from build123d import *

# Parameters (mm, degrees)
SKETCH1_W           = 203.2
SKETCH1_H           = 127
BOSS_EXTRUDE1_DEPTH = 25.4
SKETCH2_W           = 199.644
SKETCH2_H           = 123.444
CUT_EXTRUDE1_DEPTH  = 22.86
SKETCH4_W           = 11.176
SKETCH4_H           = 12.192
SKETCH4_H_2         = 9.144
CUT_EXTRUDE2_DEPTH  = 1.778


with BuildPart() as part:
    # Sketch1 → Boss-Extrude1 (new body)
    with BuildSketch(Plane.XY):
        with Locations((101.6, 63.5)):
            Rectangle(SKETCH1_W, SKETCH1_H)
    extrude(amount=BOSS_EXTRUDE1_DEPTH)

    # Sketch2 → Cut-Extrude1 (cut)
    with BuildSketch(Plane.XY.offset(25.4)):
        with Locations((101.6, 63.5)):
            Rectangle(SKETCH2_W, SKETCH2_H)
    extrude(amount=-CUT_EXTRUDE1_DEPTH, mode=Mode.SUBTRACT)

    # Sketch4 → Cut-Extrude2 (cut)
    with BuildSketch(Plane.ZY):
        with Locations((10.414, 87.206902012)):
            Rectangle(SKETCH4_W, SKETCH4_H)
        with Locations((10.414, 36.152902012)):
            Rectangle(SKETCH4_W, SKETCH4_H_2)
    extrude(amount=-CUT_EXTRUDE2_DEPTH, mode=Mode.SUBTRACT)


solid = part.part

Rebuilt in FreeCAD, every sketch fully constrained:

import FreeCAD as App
import Part
import Sketcher
from FreeCAD import Vector
Q = App.Units.Quantity

doc = App.newDocument("Part")
body = doc.addObject("PartDesign::Body", "Body")

# Sketch on XY plane
sketch1 = doc.addObject("Sketcher::SketchObject", "Sketch")
body.addObject(sketch1)
sketch1.AttachmentSupport = (doc.XY_Plane, [""])
sketch1.MapMode = "FlatFace"
sketch1.addGeometry(Part.LineSegment(Vector(0, 127, 0), Vector(0, 0, 0)), False)
sketch1.addGeometry(Part.LineSegment(Vector(0, 0, 0), Vector(203, 0, 0)), False)
sketch1.addGeometry(Part.LineSegment(Vector(203, 0, 0), Vector(203, 127, 0)), False)
sketch1.addGeometry(Part.LineSegment(Vector(203, 127, 0), Vector(0, 127, 0)), False)
sketch1.addConstraint(Sketcher.Constraint("Coincident", 0, 2, 1, 1))
sketch1.addConstraint(Sketcher.Constraint("Coincident", 1, 2, 2, 1))
sketch1.addConstraint(Sketcher.Constraint("Coincident", 2, 2, 3, 1))
sketch1.addConstraint(Sketcher.Constraint("Coincident", 3, 2, 0, 1))
sketch1.addConstraint(Sketcher.Constraint("Vertical", 0))
sketch1.addConstraint(Sketcher.Constraint("Horizontal", 1))
sketch1.addConstraint(Sketcher.Constraint("Vertical", 2))
sketch1.addConstraint(Sketcher.Constraint("Horizontal", 3))
sketch1.addConstraint(Sketcher.Constraint("Coincident", 0, 2, -1, 1))
sketch1.addConstraint(Sketcher.Constraint("DistanceX", 1, 1, 1, 2, Q("8 in")))
sketch1.addConstraint(Sketcher.Constraint("DistanceY", 0, 2, 0, 1, Q("5 in")))
pad1 = doc.addObject("PartDesign::Pad", "Pad")
body.addObject(pad1)
pad1.Profile = sketch1
pad1.Length = Q("1 in")

# Sketch on XY plane
sketch2 = doc.addObject("Sketcher::SketchObject", "Sketch001")
body.addObject(sketch2)
sketch2.AttachmentSupport = (doc.XY_Plane, [""])
sketch2.MapMode = "FlatFace"
sketch2.AttachmentOffset = App.Placement(Vector(0, 0, 1 * 25.4), App.Rotation())
sketch2.addGeometry(Part.LineSegment(Vector(2, 125, 0), Vector(2, 2, 0)), False)
sketch2.addGeometry(Part.LineSegment(Vector(2, 2, 0), Vector(201, 2, 0)), False)
sketch2.addGeometry(Part.LineSegment(Vector(201, 2, 0), Vector(201, 125, 0)), False)
sketch2.addGeometry(Part.LineSegment(Vector(201, 125, 0), Vector(2, 125, 0)), False)
sketch2.addConstraint(Sketcher.Constraint("Coincident", 0, 2, 1, 1))
sketch2.addConstraint(Sketcher.Constraint("Coincident", 1, 2, 2, 1))
sketch2.addConstraint(Sketcher.Constraint("Coincident", 2, 2, 3, 1))
sketch2.addConstraint(Sketcher.Constraint("Coincident", 3, 2, 0, 1))
sketch2.addConstraint(Sketcher.Constraint("Vertical", 0))
sketch2.addConstraint(Sketcher.Constraint("Horizontal", 1))
sketch2.addConstraint(Sketcher.Constraint("Vertical", 2))
sketch2.addConstraint(Sketcher.Constraint("Horizontal", 3))
sketch2.addConstraint(Sketcher.Constraint("DistanceX", 1, 1, 1, 2, Q("7.86 in")))
sketch2.addConstraint(Sketcher.Constraint("DistanceY", 0, 2, 0, 1, Q("4.86 in")))
sketch2.addConstraint(Sketcher.Constraint("DistanceX", -1, 1, 0, 2, Q("0.07 in")))
sketch2.addConstraint(Sketcher.Constraint("DistanceY", -1, 1, 0, 2, Q("0.07 in")))
pocket1 = doc.addObject("PartDesign::Pocket", "Pocket")
body.addObject(pocket1)
pocket1.Profile = sketch2
pocket1.Length = Q("0.9 in")

# Sketch on YZ plane
sketch3 = doc.addObject("Sketcher::SketchObject", "Sketch002")
body.addObject(sketch3)
sketch3.AttachmentSupport = (doc.YZ_Plane, [""])
sketch3.MapMode = "FlatFace"
sketch3.addGeometry(Part.LineSegment(Vector(93, 5, 0), Vector(81, 5, 0)), False)
sketch3.addGeometry(Part.LineSegment(Vector(81, 5, 0), Vector(81, 16, 0)), False)
sketch3.addGeometry(Part.LineSegment(Vector(81, 16, 0), Vector(93, 16, 0)), False)
sketch3.addGeometry(Part.LineSegment(Vector(93, 16, 0), Vector(93, 5, 0)), False)
sketch3.addGeometry(Part.LineSegment(Vector(41, 5, 0), Vector(32, 5, 0)), False)
sketch3.addGeometry(Part.LineSegment(Vector(32, 5, 0), Vector(32, 16, 0)), False)
sketch3.addGeometry(Part.LineSegment(Vector(32, 16, 0), Vector(41, 16, 0)), False)
sketch3.addGeometry(Part.LineSegment(Vector(41, 16, 0), Vector(41, 5, 0)), False)
sketch3.addConstraint(Sketcher.Constraint("Coincident", 0, 2, 1, 1))
sketch3.addConstraint(Sketcher.Constraint("Coincident", 1, 2, 2, 1))
sketch3.addConstraint(Sketcher.Constraint("Coincident", 2, 2, 3, 1))
sketch3.addConstraint(Sketcher.Constraint("Coincident", 3, 2, 0, 1))
sketch3.addConstraint(Sketcher.Constraint("Coincident", 4, 2, 5, 1))
sketch3.addConstraint(Sketcher.Constraint("Coincident", 5, 2, 6, 1))
sketch3.addConstraint(Sketcher.Constraint("Coincident", 6, 2, 7, 1))
sketch3.addConstraint(Sketcher.Constraint("Coincident", 7, 2, 4, 1))
sketch3.addConstraint(Sketcher.Constraint("Horizontal", 0))
sketch3.addConstraint(Sketcher.Constraint("Vertical", 1))
sketch3.addConstraint(Sketcher.Constraint("Horizontal", 2))
sketch3.addConstraint(Sketcher.Constraint("Vertical", 3))
sketch3.addConstraint(Sketcher.Constraint("Horizontal", 4))
sketch3.addConstraint(Sketcher.Constraint("Vertical", 5))
sketch3.addConstraint(Sketcher.Constraint("Horizontal", 6))
sketch3.addConstraint(Sketcher.Constraint("Vertical", 7))
sketch3.addConstraint(Sketcher.Constraint("Horizontal", 3, 2, 4, 2))
sketch3.addConstraint(Sketcher.Constraint("Horizontal", 2, 2, 5, 2))
sketch3.addConstraint(Sketcher.Constraint("DistanceX", 0, 2, 0, 1, Q("0.48 in")))
sketch3.addConstraint(Sketcher.Constraint("DistanceX", 4, 2, 4, 1, Q("0.36 in")))
sketch3.addConstraint(Sketcher.Constraint("DistanceY", 1, 1, 1, 2, Q("0.44 in")))
sketch3.addConstraint(Sketcher.Constraint("DistanceY", -1, 1, 0, 2, Q("0.19 in")))
sketch3.addConstraint(Sketcher.Constraint("DistanceX", 4, 2, 0, 2, Q("1.95 in")))
sketch3.addConstraint(Sketcher.Constraint("DistanceX", -1, 1, 0, 2, 81.110902))
pocket2 = doc.addObject("PartDesign::Pocket", "Pocket001")
body.addObject(pocket2)
pocket2.Profile = sketch3
pocket2.Length = Q("0.07 in")
pocket2.Reversed = True

doc.recompute()
